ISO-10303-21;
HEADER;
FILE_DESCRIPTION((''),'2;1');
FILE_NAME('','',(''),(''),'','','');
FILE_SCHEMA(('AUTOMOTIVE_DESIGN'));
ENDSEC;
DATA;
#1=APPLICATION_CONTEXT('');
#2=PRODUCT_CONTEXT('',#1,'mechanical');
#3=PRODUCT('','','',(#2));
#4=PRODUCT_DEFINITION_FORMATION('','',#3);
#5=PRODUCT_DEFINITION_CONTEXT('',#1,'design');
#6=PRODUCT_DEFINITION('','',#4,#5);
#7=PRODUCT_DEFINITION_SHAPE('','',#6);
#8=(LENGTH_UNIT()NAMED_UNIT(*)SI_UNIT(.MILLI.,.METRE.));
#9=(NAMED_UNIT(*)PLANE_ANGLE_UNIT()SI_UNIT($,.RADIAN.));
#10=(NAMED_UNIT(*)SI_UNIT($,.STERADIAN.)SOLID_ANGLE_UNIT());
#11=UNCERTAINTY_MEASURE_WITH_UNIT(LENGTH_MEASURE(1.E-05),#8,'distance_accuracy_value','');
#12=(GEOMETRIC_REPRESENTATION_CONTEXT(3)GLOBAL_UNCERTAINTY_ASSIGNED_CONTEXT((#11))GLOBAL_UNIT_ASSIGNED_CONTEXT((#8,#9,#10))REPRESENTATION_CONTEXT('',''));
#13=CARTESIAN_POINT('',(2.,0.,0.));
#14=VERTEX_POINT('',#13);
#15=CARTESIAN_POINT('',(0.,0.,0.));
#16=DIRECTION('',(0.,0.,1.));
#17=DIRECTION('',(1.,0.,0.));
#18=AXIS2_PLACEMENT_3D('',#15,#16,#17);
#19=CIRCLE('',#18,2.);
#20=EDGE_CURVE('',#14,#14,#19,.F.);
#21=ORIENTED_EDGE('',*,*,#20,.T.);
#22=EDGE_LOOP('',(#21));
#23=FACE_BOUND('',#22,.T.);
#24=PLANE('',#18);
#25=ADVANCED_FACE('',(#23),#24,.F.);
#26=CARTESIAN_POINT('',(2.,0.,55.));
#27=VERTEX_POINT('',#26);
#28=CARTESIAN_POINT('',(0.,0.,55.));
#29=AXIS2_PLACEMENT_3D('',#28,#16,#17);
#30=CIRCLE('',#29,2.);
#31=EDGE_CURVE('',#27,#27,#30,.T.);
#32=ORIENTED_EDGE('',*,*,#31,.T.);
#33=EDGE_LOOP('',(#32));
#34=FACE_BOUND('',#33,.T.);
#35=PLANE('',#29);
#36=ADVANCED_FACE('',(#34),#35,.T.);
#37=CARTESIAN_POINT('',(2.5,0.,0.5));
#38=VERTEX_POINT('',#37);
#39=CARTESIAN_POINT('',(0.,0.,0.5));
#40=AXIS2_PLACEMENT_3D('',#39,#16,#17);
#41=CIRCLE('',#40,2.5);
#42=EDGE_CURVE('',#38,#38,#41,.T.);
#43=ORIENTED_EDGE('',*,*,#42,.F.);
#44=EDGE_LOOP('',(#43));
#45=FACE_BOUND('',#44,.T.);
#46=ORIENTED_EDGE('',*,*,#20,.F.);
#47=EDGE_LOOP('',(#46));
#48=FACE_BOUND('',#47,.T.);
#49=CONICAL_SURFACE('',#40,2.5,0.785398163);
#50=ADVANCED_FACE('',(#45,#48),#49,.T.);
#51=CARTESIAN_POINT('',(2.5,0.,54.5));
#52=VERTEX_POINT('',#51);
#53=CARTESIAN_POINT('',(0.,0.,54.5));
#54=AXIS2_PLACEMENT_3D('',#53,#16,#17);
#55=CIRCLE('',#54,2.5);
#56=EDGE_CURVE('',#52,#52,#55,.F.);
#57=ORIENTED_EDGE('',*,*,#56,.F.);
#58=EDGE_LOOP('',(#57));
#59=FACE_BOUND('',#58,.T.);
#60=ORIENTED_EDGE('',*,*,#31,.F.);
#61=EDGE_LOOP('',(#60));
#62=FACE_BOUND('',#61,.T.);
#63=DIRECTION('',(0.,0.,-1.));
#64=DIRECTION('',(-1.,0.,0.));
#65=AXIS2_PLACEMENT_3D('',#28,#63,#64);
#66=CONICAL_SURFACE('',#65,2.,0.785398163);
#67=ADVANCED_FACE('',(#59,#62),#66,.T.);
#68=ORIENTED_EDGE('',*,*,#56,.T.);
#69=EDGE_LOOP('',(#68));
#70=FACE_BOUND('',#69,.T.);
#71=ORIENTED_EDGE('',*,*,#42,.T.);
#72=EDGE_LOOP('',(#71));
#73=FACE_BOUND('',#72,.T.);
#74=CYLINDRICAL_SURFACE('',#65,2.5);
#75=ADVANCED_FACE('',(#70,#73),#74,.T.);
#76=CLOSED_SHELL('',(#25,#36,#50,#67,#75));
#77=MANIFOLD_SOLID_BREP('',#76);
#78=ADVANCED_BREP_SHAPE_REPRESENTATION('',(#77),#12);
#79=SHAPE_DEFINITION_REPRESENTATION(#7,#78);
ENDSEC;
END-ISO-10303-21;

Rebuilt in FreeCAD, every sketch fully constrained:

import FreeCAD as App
import Part
import Sketcher

V = App.Vector


def edges_at(feature, points):
    """Names of the edges that pass closest to the given points."""
    edges = feature.Shape.Edges
    near = lambda p: min(range(len(edges)), key=lambda i: edges[i].distToShape(Part.Vertex(*p))[0])
    return sorted({f"Edge{near(p) + 1}" for p in points})

doc = App.newDocument("Part")
body = doc.addObject("PartDesign::Body", "Body")

# Sketch on XY plane
sketch1 = body.newObject("Sketcher::SketchObject", "Sketch")
sketch1.AttachmentSupport = (doc.getObject("XY_Plane"), [""])
sketch1.MapMode = "FlatFace"
sketch1.addGeometry(Part.Circle(V(0, 0, 0), V(0, 0, 1), 2.5), False)
sketch1.addConstraint(Sketcher.Constraint("Coincident", 0, 3, -1, 1))
sketch1.addConstraint(Sketcher.Constraint("Diameter", 0, 5.0))
pad1 = body.newObject("PartDesign::Pad", "Pad")
pad1.Profile = sketch1
pad1.Length = 55
doc.recompute()

chamfer = body.newObject("PartDesign::Chamfer", "Chamfer")
chamfer.Base = (pad1, edges_at(pad1, [(-2.5, 0, 0), (-2.5, 0, 55)]))
chamfer.Size = 0.5

doc.recompute()
